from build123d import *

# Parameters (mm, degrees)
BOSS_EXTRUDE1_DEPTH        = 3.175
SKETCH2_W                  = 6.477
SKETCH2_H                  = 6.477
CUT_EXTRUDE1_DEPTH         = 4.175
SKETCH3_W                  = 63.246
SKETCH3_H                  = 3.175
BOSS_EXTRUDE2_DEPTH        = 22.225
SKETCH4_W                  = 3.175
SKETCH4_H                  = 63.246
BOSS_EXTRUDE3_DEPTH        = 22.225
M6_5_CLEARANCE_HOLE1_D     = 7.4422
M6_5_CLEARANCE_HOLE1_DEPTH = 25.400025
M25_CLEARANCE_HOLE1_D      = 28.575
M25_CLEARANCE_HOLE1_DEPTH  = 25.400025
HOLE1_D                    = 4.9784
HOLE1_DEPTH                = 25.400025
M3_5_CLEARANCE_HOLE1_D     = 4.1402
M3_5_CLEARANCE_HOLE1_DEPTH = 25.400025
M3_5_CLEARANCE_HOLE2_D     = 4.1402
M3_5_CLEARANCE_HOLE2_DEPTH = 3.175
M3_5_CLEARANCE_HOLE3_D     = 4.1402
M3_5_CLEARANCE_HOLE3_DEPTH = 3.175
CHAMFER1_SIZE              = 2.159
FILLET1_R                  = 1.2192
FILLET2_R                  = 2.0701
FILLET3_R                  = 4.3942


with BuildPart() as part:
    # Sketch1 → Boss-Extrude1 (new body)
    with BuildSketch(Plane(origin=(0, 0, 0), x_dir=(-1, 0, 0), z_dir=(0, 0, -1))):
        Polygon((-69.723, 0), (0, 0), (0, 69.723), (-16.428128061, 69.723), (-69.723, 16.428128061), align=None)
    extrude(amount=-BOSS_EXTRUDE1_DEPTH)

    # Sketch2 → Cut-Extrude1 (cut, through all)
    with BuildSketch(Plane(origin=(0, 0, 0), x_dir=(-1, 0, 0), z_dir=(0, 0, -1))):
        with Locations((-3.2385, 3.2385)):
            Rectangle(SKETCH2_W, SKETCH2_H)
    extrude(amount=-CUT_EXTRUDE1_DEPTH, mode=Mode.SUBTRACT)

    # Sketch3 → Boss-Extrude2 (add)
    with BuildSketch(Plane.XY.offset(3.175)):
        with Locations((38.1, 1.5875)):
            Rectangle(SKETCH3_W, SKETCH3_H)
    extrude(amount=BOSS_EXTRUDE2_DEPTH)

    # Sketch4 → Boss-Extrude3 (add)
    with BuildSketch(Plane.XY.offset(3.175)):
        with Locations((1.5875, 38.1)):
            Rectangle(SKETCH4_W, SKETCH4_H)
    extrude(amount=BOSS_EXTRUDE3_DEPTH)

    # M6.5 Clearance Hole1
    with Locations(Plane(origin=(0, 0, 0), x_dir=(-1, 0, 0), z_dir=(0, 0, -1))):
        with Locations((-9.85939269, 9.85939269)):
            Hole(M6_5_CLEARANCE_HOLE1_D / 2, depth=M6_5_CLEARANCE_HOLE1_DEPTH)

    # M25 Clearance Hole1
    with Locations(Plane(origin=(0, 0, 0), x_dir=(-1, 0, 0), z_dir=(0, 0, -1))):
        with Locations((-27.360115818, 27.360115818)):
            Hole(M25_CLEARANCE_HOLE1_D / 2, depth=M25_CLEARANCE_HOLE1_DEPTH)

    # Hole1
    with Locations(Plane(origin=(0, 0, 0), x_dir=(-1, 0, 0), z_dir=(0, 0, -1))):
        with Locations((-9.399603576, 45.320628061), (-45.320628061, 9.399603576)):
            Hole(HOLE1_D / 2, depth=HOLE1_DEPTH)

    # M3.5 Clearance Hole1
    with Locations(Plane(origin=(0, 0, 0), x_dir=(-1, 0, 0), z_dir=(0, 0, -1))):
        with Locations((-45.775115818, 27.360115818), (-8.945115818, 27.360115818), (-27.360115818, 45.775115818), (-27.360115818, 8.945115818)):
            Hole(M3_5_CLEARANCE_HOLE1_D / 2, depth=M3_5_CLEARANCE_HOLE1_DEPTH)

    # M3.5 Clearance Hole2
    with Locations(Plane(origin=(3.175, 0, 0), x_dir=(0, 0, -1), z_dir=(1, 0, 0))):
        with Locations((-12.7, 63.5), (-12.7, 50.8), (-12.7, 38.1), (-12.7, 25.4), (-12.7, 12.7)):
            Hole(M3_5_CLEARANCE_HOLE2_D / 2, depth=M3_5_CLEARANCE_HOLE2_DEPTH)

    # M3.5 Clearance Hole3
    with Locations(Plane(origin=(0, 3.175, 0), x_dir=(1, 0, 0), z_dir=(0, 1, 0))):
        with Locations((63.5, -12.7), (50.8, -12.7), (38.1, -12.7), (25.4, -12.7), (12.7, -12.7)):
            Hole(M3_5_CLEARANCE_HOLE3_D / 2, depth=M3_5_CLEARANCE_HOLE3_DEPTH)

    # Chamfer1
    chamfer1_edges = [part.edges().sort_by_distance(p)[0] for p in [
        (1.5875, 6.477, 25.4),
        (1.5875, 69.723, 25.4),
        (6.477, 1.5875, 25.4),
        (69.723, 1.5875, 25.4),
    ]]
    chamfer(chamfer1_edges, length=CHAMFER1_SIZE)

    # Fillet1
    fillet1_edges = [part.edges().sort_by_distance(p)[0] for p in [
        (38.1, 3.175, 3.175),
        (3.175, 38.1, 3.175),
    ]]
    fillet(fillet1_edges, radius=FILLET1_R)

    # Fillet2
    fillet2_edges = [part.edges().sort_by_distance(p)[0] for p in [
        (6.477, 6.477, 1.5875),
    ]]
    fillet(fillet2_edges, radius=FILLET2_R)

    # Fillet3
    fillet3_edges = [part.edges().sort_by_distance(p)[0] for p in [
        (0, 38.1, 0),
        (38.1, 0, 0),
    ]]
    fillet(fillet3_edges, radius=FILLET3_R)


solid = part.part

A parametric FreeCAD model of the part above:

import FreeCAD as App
import Part
import Sketcher
from FreeCAD import Vector
Q = App.Units.Quantity


def edges_at(feature, points):
    """Names of the edges that pass closest to the given points."""
    edges = feature.Shape.Edges
    near = lambda p: min(range(len(edges)), key=lambda i: edges[i].distToShape(Part.Vertex(*p))[0])
    return sorted({f"Edge{near(p) + 1}" for p in points})

doc = App.newDocument("Part")
body = doc.addObject("PartDesign::Body", "Body")

sketch1 = body.newObject("Sketcher::SketchObject", "Sketch")
sketch1.AttachmentSupport = (doc.getObject("XY_Plane"), [""])
sketch1.MapMode = "FlatFace"
sketch1.addGeometry([
    Part.LineSegment(Vector(69.723, 0, 0), Vector(0, 0, 0)),
    Part.LineSegment(Vector(0, 0, 0), Vector(0, 69.723, 0)),
    Part.LineSegment(Vector(0, 69.723, 0), Vector(16.428128, 69.723, 0)),
    Part.LineSegment(Vector(16.428128, 69.723, 0), Vector(69.723, 16.428128, 0)),
    Part.LineSegment(Vector(69.723, 16.428128, 0), Vector(69.723, 0, 0)),
], False)
sketch1.addConstraint([
    Sketcher.Constraint("Coincident", 0, 2, 1, 1),
    Sketcher.Constraint("Coincident", 1, 2, 2, 1),
    Sketcher.Constraint("Coincident", 2, 2, 3, 1),
    Sketcher.Constraint("Coincident", 3, 2, 4, 1),
    Sketcher.Constraint("Coincident", 4, 2, 0, 1),
    Sketcher.Constraint("Horizontal", 0),
    Sketcher.Constraint("Vertical", 1),
    Sketcher.Constraint("Horizontal", 2),
    Sketcher.Constraint("Vertical", 4),
    Sketcher.Constraint("Coincident", 0, 2, -1, 1),
    Sketcher.Constraint("Equal", 0, 1),
    Sketcher.Constraint("Equal", 2, 4),
    Sketcher.Constraint("DistanceX", 0, 2, 0, 1, Q("2.745 in")),
    Sketcher.Constraint("DistanceX", 2, 1, 2, 2, Q("16.428128 mm")),
])
pad1 = body.newObject("PartDesign::Pad", "Pad")
pad1.Profile = sketch1
pad1.Length = Q("0.125 in")

sketch2 = body.newObject("Sketcher::SketchObject", "Sketch001")
sketch2.AttachmentSupport = (doc.getObject("XY_Plane"), [""])
sketch2.MapMode = "FlatFace"
sketch2.addGeometry([
    Part.LineSegment(Vector(6.477, 6.477, 0), Vector(6.477, 0, 0)),
    Part.LineSegment(Vector(6.477, 0, 0), Vector(0, 0, 0)),
    Part.LineSegment(Vector(0, 0, 0), Vector(0, 6.477, 0)),
    Part.LineSegment(Vector(0, 6.477, 0), Vector(6.477, 6.477, 0)),
], False)
sketch2.addConstraint([
    Sketcher.Constraint("Coincident", 0, 2, 1, 1),
    Sketcher.Constraint("Coincident", 1, 2, 2, 1),
    Sketcher.Constraint("Coincident", 2, 2, 3, 1),
    Sketcher.Constraint("Coincident", 3, 2, 0, 1),
    Sketcher.Constraint("Vertical", 0),
    Sketcher.Constraint("Horizontal", 1),
    Sketcher.Constraint("Vertical", 2),
    Sketcher.Constraint("Horizontal", 3),
    Sketcher.Constraint("Coincident", 1, 2, -1, 1),
    Sketcher.Constraint("Equal", 3, 0),
    Sketcher.Constraint("DistanceX", 1, 2, 1, 1, Q("0.255 in")),
])
pocket1 = body.newObject("PartDesign::Pocket", "Pocket")
pocket1.Profile = sketch2
pocket1.Type = "ThroughAll"
pocket1.Reversed = True

sketch3 = body.newObject("Sketcher::SketchObject", "Sketch002")
sketch3.AttachmentSupport = (doc.getObject("XY_Plane"), [""])
sketch3.MapMode = "FlatFace"
sketch3.AttachmentOffset = App.Placement(Vector(0, 0, 0.125 * 25.4), App.Rotation())
sketch3.addGeometry([
    Part.LineSegment(Vector(6.477, 3.175, 0), Vector(6.477, 0, 0)),
    Part.LineSegment(Vector(6.477, 0, 0), Vector(69.723, 0, 0)),
    Part.LineSegment(Vector(69.723, 0, 0), Vector(69.723, 3.175, 0)),
    Part.LineSegment(Vector(69.723, 3.175, 0), Vector(6.477, 3.175, 0)),
], False)
sketch3.addConstraint([
    Sketcher.Constraint("Coincident", 0, 2, 1, 1),
    Sketcher.Constraint("Coincident", 1, 2, 2, 1),
    Sketcher.Constraint("Coincident", 2, 2, 3, 1),
    Sketcher.Constraint("Coincident", 3, 2, 0, 1),
    Sketcher.Constraint("Vertical", 0),
    Sketcher.Constraint("Horizontal", 1),
    Sketcher.Constraint("Vertical", 2),
    Sketcher.Constraint("Horizontal", 3),
    Sketcher.Constraint("PointOnObject", 0, 2, -1),
    Sketcher.Constraint("DistanceX", 1, 1, 1, 2, Q("2.49 in")),
    Sketcher.Constraint("DistanceY", 0, 2, 0, 1, Q("0.125 in")),
    Sketcher.Constraint("DistanceX", -1, 1, 0, 2, Q("0.255 in")),
])
pad2 = body.newObject("PartDesign::Pad", "Pad001")
pad2.Profile = sketch3
pad2.Length = Q("0.875 in")

sketch4 = body.newObject("Sketcher::SketchObject", "Sketch003")
sketch4.AttachmentSupport = (doc.getObject("XY_Plane"), [""])
sketch4.MapMode = "FlatFace"
sketch4.AttachmentOffset = App.Placement(Vector(0, 0, 0.125 * 25.4), App.Rotation())
sketch4.addGeometry([
    Part.LineSegment(Vector(0, 69.723, 0), Vector(0, 6.477, 0)),
    Part.LineSegment(Vector(0, 6.477, 0), Vector(3.175, 6.477, 0)),
    Part.LineSegment(Vector(3.175, 6.477, 0), Vector(3.175, 69.723, 0)),
    Part.LineSegment(Vector(3.175, 69.723, 0), Vector(0, 69.723, 0)),
], False)
sketch4.addConstraint([
    Sketcher.Constraint("Coincident", 0, 2, 1, 1),
    Sketcher.Constraint("Coincident", 1, 2, 2, 1),
    Sketcher.Constraint("Coincident", 2, 2, 3, 1),
    Sketcher.Constraint("Coincident", 3, 2, 0, 1),
    Sketcher.Constraint("Vertical", 0),
    Sketcher.Constraint("Horizontal", 1),
    Sketcher.Constraint("Vertical", 2),
    Sketcher.Constraint("Horizontal", 3),
    Sketcher.Constraint("PointOnObject", 0, 2, -2),
    Sketcher.Constraint("DistanceY", 0, 2, 0, 1, Q("2.49 in")),
    Sketcher.Constraint("DistanceX", 1, 1, 1, 2, Q("0.125 in")),
    Sketcher.Constraint("DistanceY", -1, 1, 0, 2, Q("0.255 in")),
])
pad3 = body.newObject("PartDesign::Pad", "Pad002")
pad3.Profile = sketch4
pad3.Length = Q("0.875 in")

sketch5 = body.newObject("Sketcher::SketchObject", "Sketch004")
sketch5.AttachmentSupport = (doc.getObject("XY_Plane"), [""])
sketch5.MapMode = "FlatFace"
sketch5.addGeometry(Part.Circle(Vector(9.859393, 9.859393, 0), Vector(0, 0, 1), 3.7211), False)
sketch5.addConstraint([
    Sketcher.Constraint("Diameter", 0, Q("0.293 in")),
    Sketcher.Constraint("DistanceX", -1, 1, 0, 3, Q("9.859393 mm")),
    Sketcher.Constraint("DistanceY", -1, 1, 0, 3, Q("9.859393 mm")),
])
doc.recompute()
hole = body.newObject("PartDesign::Hole", "Hole")
hole.Profile = sketch5
hole.ThreadType = "None"
hole.Diameter = Q("0.293 in")
hole.DepthType = "Dimension"
hole.Depth = 25.400025
hole.DrillPoint = "Flat"
hole.Reversed = True

sketch6 = body.newObject("Sketcher::SketchObject", "Sketch005")
sketch6.AttachmentSupport = (doc.getObject("XY_Plane"), [""])
sketch6.MapMode = "FlatFace"
sketch6.addGeometry(Part.Circle(Vector(27.360116, 27.360116, 0), Vector(0, 0, 1), 14.2875), False)
sketch6.addConstraint([
    Sketcher.Constraint("Diameter", 0, Q("1.125 in")),
    Sketcher.Constraint("DistanceX", -1, 1, 0, 3, Q("27.360116 mm")),
    Sketcher.Constraint("DistanceY", -1, 1, 0, 3, Q("27.360116 mm")),
])
doc.recompute()
hole2 = body.newObject("PartDesign::Hole", "Hole001")
hole2.Profile = sketch6
hole2.ThreadType = "None"
hole2.Diameter = Q("1.125 in")
hole2.DepthType = "Dimension"
hole2.Depth = 25.400025
hole2.DrillPoint = "Flat"
hole2.Reversed = True

sketch7 = body.newObject("Sketcher::SketchObject", "Sketch006")
sketch7.AttachmentSupport = (doc.getObject("XY_Plane"), [""])
sketch7.MapMode = "FlatFace"
sketch7.addGeometry([
    Part.Circle(Vector(9.399604, 45.320628, 0), Vector(0, 0, 1), 2.4892),
    Part.Circle(Vector(45.320628, 9.399604, 0), Vector(0, 0, 1), 2.4892),
], False)
sketch7.addConstraint([
    Sketcher.Constraint("Equal", 0, 1),
    Sketcher.Constraint("Diameter", 0, Q("0.196 in")),
    Sketcher.Constraint("DistanceY", -1, 1, 0, 3, Q("45.320628 mm")),
    Sketcher.Constraint("DistanceX", -1, 1, 1, 3, Q("45.320628 mm")),
    Sketcher.Constraint("DistanceX", -1, 1, 0, 3, Q("9.399604 mm")),
    Sketcher.Constraint("DistanceY", -1, 1, 1, 3, Q("9.399604 mm")),
])
doc.recompute()
hole3 = body.newObject("PartDesign::Hole", "Hole002")
hole3.Profile = sketch7
hole3.ThreadType = "None"
hole3.Diameter = Q("0.196 in")
hole3.DepthType = "Dimension"
hole3.Depth = 25.400025
hole3.DrillPoint = "Flat"
hole3.Reversed = True

sketch8 = body.newObject("Sketcher::SketchObject", "Sketch007")
sketch8.AttachmentSupport = (doc.getObject("XY_Plane"), [""])
sketch8.MapMode = "FlatFace"
sketch8.addGeometry([
    Part.Circle(Vector(45.775116, 27.360116, 0), Vector(0, 0, 1), 2.0701),
    Part.Circle(Vector(8.945116, 27.360116, 0), Vector(0, 0, 1), 2.0701),
    Part.Circle(Vector(27.360116, 45.775116, 0), Vector(0, 0, 1), 2.0701),
    Part.Circle(Vector(27.360116, 8.945116, 0), Vector(0, 0, 1), 2.0701),
], False)
sketch8.addConstraint([
    Sketcher.Constraint("Equal", 0, 1),
    Sketcher.Constraint("Equal", 1, 2),
    Sketcher.Constraint("Equal", 2, 3),
    Sketcher.Constraint("Horizontal", 0, 3, 1, 3),
    Sketcher.Constraint("Vertical", 2, 3, 3, 3),
    Sketcher.Constraint("Diameter", 0, Q("0.163 in")),
    Sketcher.Constraint("DistanceX", 1, 3, 0, 3, Q("1.45 in")),
    Sketcher.Constraint("DistanceY", 3, 3, 2, 3, Q("1.45 in")),
    Sketcher.Constraint("DistanceX", 2, 3, 0, 3, Q("0.725 in")),
    Sketcher.Constraint("DistanceY", 0, 3, 2, 3, Q("0.725 in")),
    Sketcher.Constraint("DistanceX", -1, 1, 0, 3, Q("45.775116 mm")),
    Sketcher.Constraint("DistanceY", -1, 1, 0, 3, Q("27.360116 mm")),
])
doc.recompute()
hole4 = body.newObject("PartDesign::Hole", "Hole003")
hole4.Profile = sketch8
hole4.ThreadType = "None"
hole4.Diameter = Q("0.163 in")
hole4.DepthType = "Dimension"
hole4.Depth = 25.400025
hole4.DrillPoint = "Flat"
hole4.Reversed = True

sketch9 = body.newObject("Sketcher::SketchObject", "Sketch008")
sketch9.AttachmentSupport = (doc.getObject("YZ_Plane"), [""])
sketch9.MapMode = "FlatFace"
sketch9.AttachmentOffset = App.Placement(Vector(0, 0, 0.125 * 25.4), App.Rotation())
sketch9.addGeometry([
    Part.Circle(Vector(63.5, 12.7, 0), Vector(0, 0, 1), 2.0701),
    Part.Circle(Vector(50.8, 12.7, 0), Vector(0, 0, 1), 2.0701),
    Part.Circle(Vector(38.1, 12.7, 0), Vector(0, 0, 1), 2.0701),
    Part.Circle(Vector(25.4, 12.7, 0), Vector(0, 0, 1), 2.0701),
    Part.Circle(Vector(12.7, 12.7, 0), Vector(0, 0, 1), 2.0701),
], False)
sketch9.addConstraint([
    Sketcher.Constraint("Equal", 0, 1),
    Sketcher.Constraint("Equal", 1, 2),
    Sketcher.Constraint("Equal", 2, 3),
    Sketcher.Constraint("Equal", 3, 4),
    Sketcher.Constraint("Horizontal", 0, 3, 1, 3),
    Sketcher.Constraint("Horizontal", 1, 3, 2, 3),
    Sketcher.Constraint("Horizontal", 2, 3, 3, 3),
    Sketcher.Constraint("Horizontal", 3, 3, 4, 3),
    Sketcher.Constraint("Diameter", 0, Q("0.163 in")),
    Sketcher.Constraint("DistanceX", -1, 1, 1, 3, Q("2 in")),
    Sketcher.Constraint("DistanceX", -1, 1, 3, 3, Q("1 in")),
    Sketcher.Constraint("DistanceX", 2, 3, 0, 3, Q("1 in")),
    Sketcher.Constraint("DistanceX", 4, 3, 2, 3, Q("1 in")),
    Sketcher.Constraint("DistanceX", -1, 1, 0, 3, Q("2.5 in")),
    Sketcher.Constraint("DistanceY", -1, 1, 0, 3, Q("0.5 in")),
])
doc.recompute()
hole5 = body.newObject("PartDesign::Hole", "Hole004")
hole5.Profile = sketch9
hole5.ThreadType = "None"
hole5.Diameter = Q("0.163 in")
hole5.DepthType = "Dimension"
hole5.Depth = Q("0.125 in")
hole5.DrillPoint = "Flat"

sketch10 = body.newObject("Sketcher::SketchObject", "Sketch009")
sketch10.AttachmentSupport = (doc.getObject("XZ_Plane"), [""])
sketch10.MapMode = "FlatFace"
sketch10.AttachmentOffset = App.Placement(Vector(0, 0, -0.125 * 25.4), App.Rotation())
sketch10.addGeometry([
    Part.Circle(Vector(63.5, 12.7, 0), Vector(0, 0, 1), 2.0701),
    Part.Circle(Vector(50.8, 12.7, 0), Vector(0, 0, 1), 2.0701),
    Part.Circle(Vector(38.1, 12.7, 0), Vector(0, 0, 1), 2.0701),
    Part.Circle(Vector(25.4, 12.7, 0), Vector(0, 0, 1), 2.0701),
    Part.Circle(Vector(12.7, 12.7, 0), Vector(0, 0, 1), 2.0701),
], False)
sketch10.addConstraint([
    Sketcher.Constraint("Equal", 0, 1),
    Sketcher.Constraint("Equal", 1, 2),
    Sketcher.Constraint("Equal", 2, 3),
    Sketcher.Constraint("Equal", 3, 4),
    Sketcher.Constraint("Horizontal", 0, 3, 1, 3),
    Sketcher.Constraint("Horizontal", 1, 3, 2, 3),
    Sketcher.Constraint("Horizontal", 2, 3, 3, 3),
    Sketcher.Constraint("Horizontal", 3, 3, 4, 3),
    Sketcher.Constraint("Diameter", 0, Q("0.163 in")),
    Sketcher.Constraint("DistanceX", -1, 1, 1, 3, Q("2 in")),
    Sketcher.Constraint("DistanceX", -1, 1, 3, 3, Q("1 in")),
    Sketcher.Constraint("DistanceX", 2, 3, 0, 3, Q("1 in")),
    Sketcher.Constraint("DistanceX", 4, 3, 2, 3, Q("1 in")),
    Sketcher.Constraint("DistanceX", -1, 1, 0, 3, Q("2.5 in")),
    Sketcher.Constraint("DistanceY", -1, 1, 0, 3, Q("0.5 in")),
])
doc.recompute()
hole6 = body.newObject("PartDesign::Hole", "Hole005")
hole6.Profile = sketch10
hole6.ThreadType = "None"
hole6.Diameter = Q("0.163 in")
hole6.DepthType = "Dimension"
hole6.Depth = Q("0.125 in")
hole6.DrillPoint = "Flat"
hole6.Reversed = True
doc.recompute()

chamfer = body.newObject("PartDesign::Chamfer", "Chamfer")
chamfer.Base = (hole6, edges_at(hole6, [
    (1.587, 6.477, 25.4),
    (1.587, 69.723, 25.4),
    (6.477, 1.587, 25.4),
    (69.723, 1.587, 25.4),
]))
chamfer.Size = Q("0.085 in")
doc.recompute()

fillet = body.newObject("PartDesign::Fillet", "Fillet")
fillet.Base = (chamfer, edges_at(chamfer, [(38.1, 3.175, 3.175), (3.175, 38.1, 3.175)]))
fillet.Radius = Q("0.048 in")
doc.recompute()

fillet2 = body.newObject("PartDesign::Fillet", "Fillet001")
fillet2.Base = (fillet, edges_at(fillet, [(6.477, 6.477, 1.587)]))
fillet2.Radius = Q("0.0815 in")
doc.recompute()

fillet3 = body.newObject("PartDesign::Fillet", "Fillet002")
fillet3.Base = (fillet2, edges_at(fillet2, [(0, 38.1, 0), (38.1, 0, 0)]))
fillet3.Radius = Q("0.173 in")

doc.recompute()
